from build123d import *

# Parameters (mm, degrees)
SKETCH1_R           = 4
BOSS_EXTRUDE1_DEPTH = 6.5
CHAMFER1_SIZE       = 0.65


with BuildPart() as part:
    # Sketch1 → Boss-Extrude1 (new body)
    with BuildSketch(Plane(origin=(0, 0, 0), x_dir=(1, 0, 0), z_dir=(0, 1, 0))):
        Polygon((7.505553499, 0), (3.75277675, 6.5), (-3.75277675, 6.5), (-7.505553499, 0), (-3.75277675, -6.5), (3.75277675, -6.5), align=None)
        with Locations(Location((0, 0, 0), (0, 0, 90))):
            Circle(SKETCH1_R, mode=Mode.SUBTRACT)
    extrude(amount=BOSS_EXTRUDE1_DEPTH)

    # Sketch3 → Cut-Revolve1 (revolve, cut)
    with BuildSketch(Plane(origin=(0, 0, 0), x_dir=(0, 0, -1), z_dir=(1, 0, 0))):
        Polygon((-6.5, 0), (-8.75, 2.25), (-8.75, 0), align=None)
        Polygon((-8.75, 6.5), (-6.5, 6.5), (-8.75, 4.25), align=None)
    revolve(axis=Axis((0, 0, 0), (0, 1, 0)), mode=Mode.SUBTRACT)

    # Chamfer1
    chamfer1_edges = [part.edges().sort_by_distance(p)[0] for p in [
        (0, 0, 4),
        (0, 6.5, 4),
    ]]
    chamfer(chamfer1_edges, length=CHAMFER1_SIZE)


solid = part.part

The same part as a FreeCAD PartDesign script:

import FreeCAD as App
import Part
import Sketcher
from FreeCAD import Vector
Q = App.Units.Quantity


def edges_at(feature, points):
    """Names of the edges that pass closest to the given points."""
    edges = feature.Shape.Edges
    near = lambda p: min(range(len(edges)), key=lambda i: edges[i].distToShape(Part.Vertex(*p))[0])
    return sorted({f"Edge{near(p) + 1}" for p in points})


def add_polygon(sketch, points):
    """Adds a closed chain of lines whose ends are joined by coincident constraints."""
    first, n = sketch.GeometryCount, len(points)
    for a, b in zip(points, points[1:] + points[:1]):
        sketch.addGeometry(Part.LineSegment(App.Vector(*a, 0), App.Vector(*b, 0)), False)
    for i in range(n):
        sketch.addConstraint(Sketcher.Constraint("Coincident", first + i, 2, first + (i + 1) % n, 1))

doc = App.newDocument("Part")
body = doc.addObject("PartDesign::Body", "Body")

# Sketch on XZ plane
sketch1 = body.newObject("Sketcher::SketchObject", "Sketch")
sketch1.AttachmentSupport = (doc.getObject("XZ_Plane"), [""])
sketch1.MapMode = "FlatFace"
add_polygon(sketch1, [(7.505553, 0), (3.752777, -6.5), (-3.752777, -6.5), (-7.505553, 0), (-3.752777, 6.5), (3.752777, 6.5)])  # lines 0-5
sketch1.addGeometry(Part.Circle(Vector(0, 0, 0), Vector(0, 0, 1), 4), False)  # 6
sketch1.addConstraint(Sketcher.Constraint("Horizontal", 1))
sketch1.addConstraint(Sketcher.Constraint("Horizontal", 4))
sketch1.addConstraint(Sketcher.Constraint("Coincident", 6, 3, -1, 1))
sketch1.addConstraint(Sketcher.Constraint("Symmetric", 0, 2, 3, 2, -1, 1))
sketch1.addConstraint(Sketcher.Constraint("Symmetric", 2, 2, 5, 2, -1, 1))
sketch1.addConstraint(Sketcher.Constraint("PointOnObject", 2, 2, -1))
sketch1.addConstraint(Sketcher.Constraint("Parallel", 2, 5))
sketch1.addConstraint(Sketcher.Constraint("Vertical", 1, 2, 3, 2))
sketch1.addConstraint(Sketcher.Constraint("Diameter", 6, Q("8 mm")))
sketch1.addConstraint(Sketcher.Constraint("Angle", 0, Q("-120 deg")))
sketch1.addConstraint(Sketcher.Constraint("DistanceY", 1, 2, 3, 2, Q("13 mm")))
sketch1.addConstraint(Sketcher.Constraint("DistanceX", 1, 2, 1, 1, Q("7.505554 mm")))
pad1 = body.newObject("PartDesign::Pad", "Pad")
pad1.Profile = sketch1
pad1.Length = 6.5
pad1.Reversed = True

# Sketch on YZ plane
sketch2 = body.newObject("Sketcher::SketchObject", "Sketch001")
sketch2.AttachmentSupport = (doc.getObject("YZ_Plane"), [""])
sketch2.MapMode = "FlatFace"
add_polygon(sketch2, [(0, 6.5), (2.25, 8.75), (0, 8.75)])  # lines 0-2
add_polygon(sketch2, [(6.5, 6.5), (6.5, 8.75), (4.25, 8.75)])  # lines 3-5
sketch2.addConstraint(Sketcher.Constraint("Horizontal", 1))
sketch2.addConstraint(Sketcher.Constraint("Vertical", 2))
sketch2.addConstraint(Sketcher.Constraint("Vertical", 3))
sketch2.addConstraint(Sketcher.Constraint("Horizontal", 4))
sketch2.addConstraint(Sketcher.Constraint("PointOnObject", 1, 2, -2))
sketch2.addConstraint(Sketcher.Constraint("Perpendicular", 0, 5))
sketch2.addConstraint(Sketcher.Constraint("Horizontal", 1, 2, 3, 2))
sketch2.addConstraint(Sketcher.Constraint("Horizontal", 2, 2, 5, 2))
sketch2.addConstraint(Sketcher.Constraint("Equal", 1, 4))
sketch2.addConstraint(Sketcher.Constraint("DistanceX", 0, 2, 4, 2, Q("2 mm")))
sketch2.addConstraint(Sketcher.Constraint("DistanceX", 1, 2, 1, 1, Q("2.25 mm")))
sketch2.addConstraint(Sketcher.Constraint("DistanceY", -1, 1, 2, 2, Q("6.5 mm")))
groove = body.newObject("PartDesign::Groove", "Groove")
groove.Profile = sketch2
groove.ReferenceAxis = (sketch2, ["H_Axis"])
groove.Angle = 360
doc.recompute()

chamfer = body.newObject("PartDesign::Chamfer", "Chamfer")
chamfer.Base = (groove, edges_at(groove, [(0, 0, 4), (0, 6.5, 4)]))
chamfer.Size = 0.65

doc.recompute()
